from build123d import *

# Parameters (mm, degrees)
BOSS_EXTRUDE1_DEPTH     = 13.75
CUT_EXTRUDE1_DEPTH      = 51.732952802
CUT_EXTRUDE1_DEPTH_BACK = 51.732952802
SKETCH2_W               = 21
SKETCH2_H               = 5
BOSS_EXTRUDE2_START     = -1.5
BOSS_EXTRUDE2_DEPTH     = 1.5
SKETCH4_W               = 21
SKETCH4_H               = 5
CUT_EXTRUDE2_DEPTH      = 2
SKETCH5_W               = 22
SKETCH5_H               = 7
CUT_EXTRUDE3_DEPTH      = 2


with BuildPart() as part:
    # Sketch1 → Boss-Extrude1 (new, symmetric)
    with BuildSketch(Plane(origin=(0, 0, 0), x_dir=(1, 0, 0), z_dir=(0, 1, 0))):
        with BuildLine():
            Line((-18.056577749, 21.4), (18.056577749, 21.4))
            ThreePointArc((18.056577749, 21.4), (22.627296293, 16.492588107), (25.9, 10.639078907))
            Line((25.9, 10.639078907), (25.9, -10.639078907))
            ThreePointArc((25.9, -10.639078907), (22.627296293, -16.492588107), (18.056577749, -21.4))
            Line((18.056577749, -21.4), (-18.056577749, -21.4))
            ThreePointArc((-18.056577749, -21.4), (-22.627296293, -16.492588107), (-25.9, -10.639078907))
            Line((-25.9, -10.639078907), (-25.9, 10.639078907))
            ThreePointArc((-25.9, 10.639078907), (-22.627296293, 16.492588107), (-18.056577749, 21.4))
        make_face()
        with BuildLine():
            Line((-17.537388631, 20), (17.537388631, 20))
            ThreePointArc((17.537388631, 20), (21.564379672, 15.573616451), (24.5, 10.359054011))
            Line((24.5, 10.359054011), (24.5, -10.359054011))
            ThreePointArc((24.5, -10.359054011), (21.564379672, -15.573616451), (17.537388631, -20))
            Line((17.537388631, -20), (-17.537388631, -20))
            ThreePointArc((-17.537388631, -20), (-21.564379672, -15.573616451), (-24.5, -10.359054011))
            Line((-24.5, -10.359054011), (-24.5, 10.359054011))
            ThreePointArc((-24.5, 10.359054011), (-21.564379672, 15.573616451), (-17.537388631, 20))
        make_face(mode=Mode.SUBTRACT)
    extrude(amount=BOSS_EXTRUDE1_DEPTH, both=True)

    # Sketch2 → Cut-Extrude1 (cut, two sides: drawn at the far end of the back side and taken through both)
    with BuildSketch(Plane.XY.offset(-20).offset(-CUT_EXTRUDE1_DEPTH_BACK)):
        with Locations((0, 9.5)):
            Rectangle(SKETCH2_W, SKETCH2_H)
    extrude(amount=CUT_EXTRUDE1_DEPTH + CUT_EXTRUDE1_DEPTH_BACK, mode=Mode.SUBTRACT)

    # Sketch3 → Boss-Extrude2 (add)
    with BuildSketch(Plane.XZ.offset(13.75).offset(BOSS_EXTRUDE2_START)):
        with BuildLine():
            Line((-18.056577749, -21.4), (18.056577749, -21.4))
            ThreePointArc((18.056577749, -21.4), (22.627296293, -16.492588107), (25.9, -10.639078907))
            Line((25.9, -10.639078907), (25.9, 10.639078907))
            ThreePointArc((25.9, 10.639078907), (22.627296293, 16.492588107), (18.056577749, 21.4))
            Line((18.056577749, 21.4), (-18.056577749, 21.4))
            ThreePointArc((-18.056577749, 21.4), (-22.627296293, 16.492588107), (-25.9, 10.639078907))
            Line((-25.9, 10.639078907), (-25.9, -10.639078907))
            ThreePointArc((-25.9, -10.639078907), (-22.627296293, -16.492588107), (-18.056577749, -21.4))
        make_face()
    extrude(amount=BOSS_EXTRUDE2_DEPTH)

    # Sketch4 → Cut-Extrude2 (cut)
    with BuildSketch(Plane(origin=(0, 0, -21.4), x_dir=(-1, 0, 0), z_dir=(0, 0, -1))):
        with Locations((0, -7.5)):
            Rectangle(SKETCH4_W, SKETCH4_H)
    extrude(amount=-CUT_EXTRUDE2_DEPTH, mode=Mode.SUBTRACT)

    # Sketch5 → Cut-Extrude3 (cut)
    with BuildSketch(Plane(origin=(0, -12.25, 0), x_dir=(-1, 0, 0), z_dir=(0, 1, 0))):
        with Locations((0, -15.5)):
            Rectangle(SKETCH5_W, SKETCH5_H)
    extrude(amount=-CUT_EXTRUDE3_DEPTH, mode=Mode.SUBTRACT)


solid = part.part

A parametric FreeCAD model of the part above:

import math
import FreeCAD as App
import Part
import Sketcher

V = App.Vector


def add_polygon(sketch, points):
    """Adds a closed chain of lines whose ends are joined by coincident constraints."""
    first, n = sketch.GeometryCount, len(points)
    for a, b in zip(points, points[1:] + points[:1]):
        sketch.addGeometry(Part.LineSegment(App.Vector(*a, 0), App.Vector(*b, 0)), False)
    for i in range(n):
        sketch.addConstraint(Sketcher.Constraint("Coincident", first + i, 2, first + (i + 1) % n, 1))

doc = App.newDocument("Part")
body = doc.addObject("PartDesign::Body", "Body")

sketch1 = body.newObject("Sketcher::SketchObject", "Sketch")
sketch1.AttachmentSupport = (doc.getObject("XZ_Plane"), [""])
sketch1.MapMode = "FlatFace"
sketch1.addGeometry(Part.LineSegment(V(18, -21, 0), V(-18, -21, 0)), False)
sketch1.addGeometry(Part.ArcOfCircle(Part.Circle(V(0, 0, 0), V(0, 0, 1), 28), math.radians(-158), math.radians(-130)), False)
sketch1.addGeometry(Part.LineSegment(V(-26, -11, 0), V(-26, 11, 0)), False)
sketch1.addGeometry(Part.ArcOfCircle(Part.Circle(V(0, 0, 0), V(0, 0, 1), 28), math.radians(130), math.radians(158)), False)
sketch1.addGeometry(Part.LineSegment(V(-18, 21, 0), V(18, 21, 0)), False)
sketch1.addGeometry(Part.ArcOfCircle(Part.Circle(V(0, 0, 0), V(0, 0, 1), 28), math.radians(22), math.radians(50)), False)
sketch1.addGeometry(Part.LineSegment(V(26, 11, 0), V(26, -11, 0)), False)
sketch1.addGeometry(Part.ArcOfCircle(Part.Circle(V(0, 0, 0), V(0, 0, 1), 28), math.radians(-50), math.radians(-22)), False)
sketch1.addGeometry(Part.LineSegment(V(-18, -20, 0), V(18, -20, 0)), False)
sketch1.addGeometry(Part.ArcOfCircle(Part.Circle(V(0, 0, 0), V(0, 0, 1), 27), math.radians(-49), math.radians(-23)), False)
sketch1.addGeometry(Part.LineSegment(V(24, -10, 0), V(24, 10, 0)), False)
sketch1.addGeometry(Part.ArcOfCircle(Part.Circle(V(0, 0, 0), V(0, 0, 1), 27), math.radians(23), math.radians(49)), False)
sketch1.addGeometry(Part.LineSegment(V(18, 20, 0), V(-18, 20, 0)), False)
sketch1.addGeometry(Part.ArcOfCircle(Part.Circle(V(0, 0, 0), V(0, 0, 1), 27), math.radians(131), math.radians(157)), False)
sketch1.addGeometry(Part.LineSegment(V(-24, 10, 0), V(-24, -10, 0)), False)
sketch1.addGeometry(Part.ArcOfCircle(Part.Circle(V(0, 0, 0), V(0, 0, 1), 27), math.radians(-157), math.radians(-131)), False)
sketch1.addConstraint(Sketcher.Constraint("Coincident", 0, 2, 1, 2))
sketch1.addConstraint(Sketcher.Constraint("Coincident", 1, 1, 2, 1))
sketch1.addConstraint(Sketcher.Constraint("Coincident", 2, 2, 3, 2))
sketch1.addConstraint(Sketcher.Constraint("Coincident", 3, 1, 4, 1))
sketch1.addConstraint(Sketcher.Constraint("Coincident", 4, 2, 5, 2))
sketch1.addConstraint(Sketcher.Constraint("Coincident", 5, 1, 6, 1))
sketch1.addConstraint(Sketcher.Constraint("Coincident", 6, 2, 7, 2))
sketch1.addConstraint(Sketcher.Constraint("Coincident", 7, 1, 0, 1))
sketch1.addConstraint(Sketcher.Constraint("Coincident", 8, 2, 9, 1))
sketch1.addConstraint(Sketcher.Constraint("Coincident", 9, 2, 10, 1))
sketch1.addConstraint(Sketcher.Constraint("Coincident", 10, 2, 11, 1))
sketch1.addConstraint(Sketcher.Constraint("Coincident", 11, 2, 12, 1))
sketch1.addConstraint(Sketcher.Constraint("Coincident", 12, 2, 13, 1))
sketch1.addConstraint(Sketcher.Constraint("Coincident", 13, 2, 14, 1))
sketch1.addConstraint(Sketcher.Constraint("Coincident", 14, 2, 15, 1))
sketch1.addConstraint(Sketcher.Constraint("Coincident", 15, 2, 8, 1))
sketch1.addConstraint(Sketcher.Constraint("Horizontal", 0))
sketch1.addConstraint(Sketcher.Constraint("Vertical", 2))
sketch1.addConstraint(Sketcher.Constraint("Horizontal", 4))
sketch1.addConstraint(Sketcher.Constraint("Vertical", 6))
sketch1.addConstraint(Sketcher.Constraint("Horizontal", 8))
sketch1.addConstraint(Sketcher.Constraint("Vertical", 10))
sketch1.addConstraint(Sketcher.Constraint("Horizontal", 12))
sketch1.addConstraint(Sketcher.Constraint("Vertical", 14))
sketch1.addConstraint(Sketcher.Constraint("Coincident", 1, 3, -1, 1))
sketch1.addConstraint(Sketcher.Constraint("Coincident", 3, 3, -1, 1))
sketch1.addConstraint(Sketcher.Constraint("Coincident", 5, 3, -1, 1))
sketch1.addConstraint(Sketcher.Constraint("Coincident", 7, 3, -1, 1))
sketch1.addConstraint(Sketcher.Constraint("Coincident", 9, 3, -1, 1))
sketch1.addConstraint(Sketcher.Constraint("Coincident", 11, 3, -1, 1))
sketch1.addConstraint(Sketcher.Constraint("Coincident", 13, 3, -1, 1))
sketch1.addConstraint(Sketcher.Constraint("Coincident", 15, 3, -1, 1))
sketch1.addConstraint(Sketcher.Constraint("Equal", 1, 3))
sketch1.addConstraint(Sketcher.Constraint("Equal", 3, 5))
sketch1.addConstraint(Sketcher.Constraint("Equal", 5, 7))
sketch1.addConstraint(Sketcher.Constraint("Equal", 9, 11))
sketch1.addConstraint(Sketcher.Constraint("Equal", 11, 13))
sketch1.addConstraint(Sketcher.Constraint("Equal", 13, 15))
sketch1.addConstraint(Sketcher.Constraint("Horizontal", 2, 2, 5, 1))
sketch1.addConstraint(Sketcher.Constraint("Horizontal", 10, 2, 13, 2))
sketch1.addConstraint(Sketcher.Constraint("Vertical", 0, 2, 3, 1))
sketch1.addConstraint(Sketcher.Constraint("Vertical", 8, 2, 11, 2))
sketch1.addConstraint(Sketcher.Constraint("Radius", 1, 28.0))
sketch1.addConstraint(Sketcher.Constraint("Radius", 9, 26.6))
sketch1.addConstraint(Sketcher.Constraint("DistanceY", 8, 2, -1, 1, 20.0))
sketch1.addConstraint(Sketcher.Constraint("DistanceY", 0, 2, -1, 1, 21.4))
sketch1.addConstraint(Sketcher.Constraint("DistanceX", 1, 1, -1, 1, 25.9))
sketch1.addConstraint(Sketcher.Constraint("DistanceX", -1, 1, 9, 2, 24.5))
pad1 = body.newObject("PartDesign::Pad", "Pad")
pad1.Profile = sketch1
pad1.Length = 27.5
pad1.Midplane = True

sketch2 = body.newObject("Sketcher::SketchObject", "Sketch001")
sketch2.AttachmentSupport = (doc.getObject("XY_Plane"), [""])
sketch2.MapMode = "FlatFace"
sketch2.AttachmentOffset = App.Placement(V(0, 0, -20), App.Rotation())
add_polygon(sketch2, [(-10, 12), (-10, 7), (10, 7), (10, 12)])
sketch2.addConstraint(Sketcher.Constraint("Vertical", 0))
sketch2.addConstraint(Sketcher.Constraint("Horizontal", 1))
sketch2.addConstraint(Sketcher.Constraint("Vertical", 2))
sketch2.addConstraint(Sketcher.Constraint("Horizontal", 3))
sketch2.addConstraint(Sketcher.Constraint("DistanceX", 1, 1, 1, 2, 21.0))
sketch2.addConstraint(Sketcher.Constraint("DistanceY", 0, 2, 0, 1, 5.0))
sketch2.addConstraint(Sketcher.Constraint("DistanceY", -1, 1, 0, 2, 7.0))
sketch2.addConstraint(Sketcher.Constraint("DistanceX", 0, 2, -1, 1, 10.5))
pocket1 = body.newObject("PartDesign::Pocket", "Pocket")
pocket1.Profile = sketch2
pocket1.Type = "ThroughAll"
pocket1.Midplane = True

sketch3 = body.newObject("Sketcher::SketchObject", "Sketch002")
sketch3.AttachmentSupport = (doc.getObject("XZ_Plane"), [""])
sketch3.MapMode = "FlatFace"
sketch3.AttachmentOffset = App.Placement(V(0, 0, 12.25), App.Rotation())
sketch3.addGeometry(Part.LineSegment(V(-18, -21, 0), V(18, -21, 0)), False)
sketch3.addGeometry(Part.ArcOfCircle(Part.Circle(V(0, 0, 0), V(0, 0, 1), 28), math.radians(-50), math.radians(-22)), False)
sketch3.addGeometry(Part.LineSegment(V(26, -11, 0), V(26, 11, 0)), False)
sketch3.addGeometry(Part.ArcOfCircle(Part.Circle(V(0, 0, 0), V(0, 0, 1), 28), math.radians(22), math.radians(50)), False)
sketch3.addGeometry(Part.LineSegment(V(18, 21, 0), V(-18, 21, 0)), False)
sketch3.addGeometry(Part.ArcOfCircle(Part.Circle(V(0, 0, 0), V(0, 0, 1), 28), math.radians(130), math.radians(158)), False)
sketch3.addGeometry(Part.LineSegment(V(-26, 11, 0), V(-26, -11, 0)), False)
sketch3.addGeometry(Part.ArcOfCircle(Part.Circle(V(0, 0, 0), V(0, 0, 1), 28), math.radians(-158), math.radians(-130)), False)
sketch3.addConstraint(Sketcher.Constraint("Coincident", 0, 2, 1, 1))
sketch3.addConstraint(Sketcher.Constraint("Coincident", 1, 2, 2, 1))
sketch3.addConstraint(Sketcher.Constraint("Coincident", 2, 2, 3, 1))
sketch3.addConstraint(Sketcher.Constraint("Coincident", 3, 2, 4, 1))
sketch3.addConstraint(Sketcher.Constraint("Coincident", 4, 2, 5, 1))
sketch3.addConstraint(Sketcher.Constraint("Coincident", 5, 2, 6, 1))
sketch3.addConstraint(Sketcher.Constraint("Coincident", 6, 2, 7, 1))
sketch3.addConstraint(Sketcher.Constraint("Coincident", 7, 2, 0, 1))
sketch3.addConstraint(Sketcher.Constraint("Horizontal", 0))
sketch3.addConstraint(Sketcher.Constraint("Vertical", 2))
sketch3.addConstraint(Sketcher.Constraint("Horizontal", 4))
sketch3.addConstraint(Sketcher.Constraint("Vertical", 6))
sketch3.addConstraint(Sketcher.Constraint("Coincident", 1, 3, -1, 1))
sketch3.addConstraint(Sketcher.Constraint("Coincident", 3, 3, -1, 1))
sketch3.addConstraint(Sketcher.Constraint("Coincident", 5, 3, -1, 1))
sketch3.addConstraint(Sketcher.Constraint("Coincident", 7, 3, -1, 1))
sketch3.addConstraint(Sketcher.Constraint("Equal", 1, 3))
sketch3.addConstraint(Sketcher.Constraint("Equal", 3, 5))
sketch3.addConstraint(Sketcher.Constraint("Equal", 5, 7))
sketch3.addConstraint(Sketcher.Constraint("Horizontal", 2, 2, 5, 2))
sketch3.addConstraint(Sketcher.Constraint("Vertical", 0, 2, 3, 2))
sketch3.addConstraint(Sketcher.Constraint("Radius", 1, 28.0))
sketch3.addConstraint(Sketcher.Constraint("DistanceY", 0, 2, -1, 1, 21.4))
sketch3.addConstraint(Sketcher.Constraint("DistanceX", -1, 1, 1, 2, 25.9))
pad2 = body.newObject("PartDesign::Pad", "Pad001")
pad2.Profile = sketch3
pad2.Length = 1.5

sketch4 = body.newObject("Sketcher::SketchObject", "Sketch003")
sketch4.AttachmentSupport = (doc.getObject("XY_Plane"), [""])
sketch4.MapMode = "FlatFace"
sketch4.AttachmentOffset = App.Placement(V(0, 0, -21.4), App.Rotation())
add_polygon(sketch4, [(10, -5), (10, -10), (-10, -10), (-10, -5)])
sketch4.addConstraint(Sketcher.Constraint("Vertical", 0))
sketch4.addConstraint(Sketcher.Constraint("Horizontal", 1))
sketch4.addConstraint(Sketcher.Constraint("Vertical", 2))
sketch4.addConstraint(Sketcher.Constraint("Horizontal", 3))
sketch4.addConstraint(Sketcher.Constraint("DistanceX", 1, 2, 1, 1, 21.0))
sketch4.addConstraint(Sketcher.Constraint("DistanceY", 0, 2, 0, 1, 5.0))
sketch4.addConstraint(Sketcher.Constraint("DistanceY", 0, 2, -1, 1, 10.0))
sketch4.addConstraint(Sketcher.Constraint("DistanceX", -1, 1, 0, 2, 10.5))
pocket2 = body.newObject("PartDesign::Pocket", "Pocket001")
pocket2.Profile = sketch4
pocket2.Length = 2
pocket2.Reversed = True

sketch5 = body.newObject("Sketcher::SketchObject", "Sketch004")
sketch5.AttachmentSupport = (doc.getObject("XZ_Plane"), [""])
sketch5.MapMode = "FlatFace"
sketch5.AttachmentOffset = App.Placement(V(0, 0, 12.25), App.Rotation())
add_polygon(sketch5, [(11, -12), (11, -19), (-11, -19), (-11, -12)])
sketch5.addConstraint(Sketcher.Constraint("Vertical", 0))
sketch5.addConstraint(Sketcher.Constraint("Horizontal", 1))
sketch5.addConstraint(Sketcher.Constraint("Vertical", 2))
sketch5.addConstraint(Sketcher.Constraint("Horizontal", 3))
sketch5.addConstraint(Sketcher.Constraint("DistanceX", 1, 2, 1, 1, 22.0))
sketch5.addConstraint(Sketcher.Constraint("DistanceY", 0, 2, 0, 1, 7.0))
sketch5.addConstraint(Sketcher.Constraint("DistanceX", -1, 1, 0, 2, 11.0))
sketch5.addConstraint(Sketcher.Constraint("DistanceY", 0, 2, -1, 1, 19.0))
pocket3 = body.newObject("PartDesign::Pocket", "Pocket002")
pocket3.Profile = sketch5
pocket3.Length = 2
pocket3.Reversed = True

doc.recompute()
